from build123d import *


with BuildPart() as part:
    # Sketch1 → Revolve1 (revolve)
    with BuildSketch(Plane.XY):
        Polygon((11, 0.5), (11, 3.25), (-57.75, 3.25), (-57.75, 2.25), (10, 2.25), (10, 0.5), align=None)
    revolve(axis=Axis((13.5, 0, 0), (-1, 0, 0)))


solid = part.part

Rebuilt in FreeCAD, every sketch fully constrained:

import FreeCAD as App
import Part
import Sketcher

V = App.Vector
Q = App.Units.Quantity

doc = App.newDocument("Part")
body = doc.addObject("PartDesign::Body", "Body")

sketch1 = doc.addObject("Sketcher::SketchObject", "Sketch")
body.addObject(sketch1)
sketch1.AttachmentSupport = (doc.XY_Plane, [""])
sketch1.MapMode = "FlatFace"
sketch1.addGeometry([
    Part.LineSegment(V(11, 0.5, 0), V(11, 3.25, 0)),
    Part.LineSegment(V(11, 3.25, 0), V(-57.75, 3.25, 0)),
    Part.LineSegment(V(-57.75, 3.25, 0), V(-57.75, 2.25, 0)),
    Part.LineSegment(V(-57.75, 2.25, 0), V(10, 2.25, 0)),
    Part.LineSegment(V(10, 2.25, 0), V(10, 0.5, 0)),
    Part.LineSegment(V(10, 0.5, 0), V(11, 0.5, 0)),
], False)
sketch1.addConstraint([
    Sketcher.Constraint("Coincident", 0, 2, 1, 1),
    Sketcher.Constraint("Coincident", 1, 2, 2, 1),
    Sketcher.Constraint("Coincident", 2, 2, 3, 1),
    Sketcher.Constraint("Coincident", 3, 2, 4, 1),
    Sketcher.Constraint("Coincident", 4, 2, 5, 1),
    Sketcher.Constraint("Coincident", 5, 2, 0, 1),
    Sketcher.Constraint("Vertical", 0),
    Sketcher.Constraint("Horizontal", 1),
    Sketcher.Constraint("Vertical", 2),
    Sketcher.Constraint("Horizontal", 3),
    Sketcher.Constraint("Vertical", 4),
    Sketcher.Constraint("Horizontal", 5),
    Sketcher.Constraint("Equal", 5, 2),
    Sketcher.Constraint("DistanceX", 5, 1, 5, 2, Q("1 mm")),
    Sketcher.Constraint("DistanceX", -1, 1, 0, 2, Q("11 mm")),
    Sketcher.Constraint("DistanceX", 1, 2, 1, 1, Q("68.75 mm")),
    Sketcher.Constraint("DistanceY", 0, 1, 0, 2, Q("2.75 mm")),
    Sketcher.Constraint("DistanceY", -1, 1, 4, 2, Q("0.5 mm")),
])
revolution = doc.addObject("PartDesign::Revolution", "Revolution")
body.addObject(revolution)
revolution.Profile = sketch1
revolution.ReferenceAxis = (sketch1, ["H_Axis"])
revolution.Angle = 360

doc.recompute()
